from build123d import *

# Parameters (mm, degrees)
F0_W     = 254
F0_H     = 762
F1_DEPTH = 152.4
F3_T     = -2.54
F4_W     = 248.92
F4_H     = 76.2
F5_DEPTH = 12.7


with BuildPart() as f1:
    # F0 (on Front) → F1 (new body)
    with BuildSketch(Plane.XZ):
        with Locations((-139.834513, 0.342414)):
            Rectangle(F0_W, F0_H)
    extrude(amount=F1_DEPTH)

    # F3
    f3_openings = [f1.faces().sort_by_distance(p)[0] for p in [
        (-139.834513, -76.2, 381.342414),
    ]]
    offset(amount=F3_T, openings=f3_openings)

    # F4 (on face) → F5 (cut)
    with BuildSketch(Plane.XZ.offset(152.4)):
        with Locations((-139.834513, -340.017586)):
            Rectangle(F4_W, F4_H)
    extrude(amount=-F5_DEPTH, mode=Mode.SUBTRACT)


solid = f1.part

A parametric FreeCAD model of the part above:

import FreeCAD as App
import Part
import Sketcher

V = App.Vector
Q = App.Units.Quantity


def faces_at(feature, points):
    """Names of the faces that lie closest to the given points."""
    faces = feature.Shape.Faces
    near = lambda p: min(range(len(faces)), key=lambda i: faces[i].distToShape(Part.Vertex(*p))[0])
    return sorted({f"Face{near(p) + 1}" for p in points})


def add_polygon(sketch, points):
    """Adds a closed chain of lines whose ends are joined by coincident constraints."""
    first, n = sketch.GeometryCount, len(points)
    for a, b in zip(points, points[1:] + points[:1]):
        sketch.addGeometry(Part.LineSegment(App.Vector(*a, 0), App.Vector(*b, 0)), False)
    for i in range(n):
        sketch.addConstraint(Sketcher.Constraint("Coincident", first + i, 2, first + (i + 1) % n, 1))

doc = App.newDocument("Part")
body = doc.addObject("PartDesign::Body", "Body")

# Sketch on XZ plane
sketch1 = doc.addObject("Sketcher::SketchObject", "Sketch")
body.addObject(sketch1)
sketch1.AttachmentSupport = (doc.XZ_Plane, [""])
sketch1.MapMode = "FlatFace"
add_polygon(sketch1, [(-266.834513, 381.342414), (-266.834513, -380.657586), (-12.834513, -380.657586), (-12.834513, 381.342414)])  # lines 0-3
sketch1.addConstraint([
    Sketcher.Constraint("Vertical", 0),
    Sketcher.Constraint("Horizontal", 1),
    Sketcher.Constraint("Vertical", 2),
    Sketcher.Constraint("Horizontal", 3),
    Sketcher.Constraint("DistanceX", 1, 1, 1, 2, Q("10 in")),
    Sketcher.Constraint("DistanceY", 0, 2, 0, 1, Q("30 in")),
    Sketcher.Constraint("DistanceX", 0, 2, -1, 1, Q("266.834513 mm")),
    Sketcher.Constraint("DistanceY", 0, 2, -1, 1, Q("380.657586 mm")),
])
pad1 = doc.addObject("PartDesign::Pad", "Pad")
body.addObject(pad1)
pad1.Profile = sketch1
pad1.Length = Q("6 in")
doc.recompute()

thickness = doc.addObject("PartDesign::Thickness", "Thickness")
body.addObject(thickness)
thickness.Base = (pad1, faces_at(pad1, [(-139.835, -76.2, 381.342)]))
thickness.Value = Q("0.1 in")
thickness.Reversed = True
thickness.Join = "Arc"

# Sketch on XZ plane
sketch2 = doc.addObject("Sketcher::SketchObject", "Sketch001")
body.addObject(sketch2)
sketch2.AttachmentSupport = (doc.XZ_Plane, [""])
sketch2.MapMode = "FlatFace"
sketch2.AttachmentOffset = App.Placement(V(0, 0, 6 * 25.4), App.Rotation())
add_polygon(sketch2, [(-264.294513, -301.917586), (-264.294513, -378.117586), (-15.374513, -378.117586), (-15.374513, -301.917586)])  # lines 0-3
sketch2.addConstraint([
    Sketcher.Constraint("Vertical", 0),
    Sketcher.Constraint("Horizontal", 1),
    Sketcher.Constraint("Vertical", 2),
    Sketcher.Constraint("Horizontal", 3),
    Sketcher.Constraint("DistanceY", 0, 2, 0, 1, Q("3 in")),
    Sketcher.Constraint("DistanceX", 1, 1, 1, 2, Q("9.8 in")),
    Sketcher.Constraint("DistanceX", 0, 2, -1, 1, Q("264.294513 mm")),
    Sketcher.Constraint("DistanceY", 0, 2, -1, 1, Q("378.117586 mm")),
])
pocket1 = doc.addObject("PartDesign::Pocket", "Pocket")
body.addObject(pocket1)
pocket1.Profile = sketch2
pocket1.Length = Q("0.5 in")

doc.recompute()
